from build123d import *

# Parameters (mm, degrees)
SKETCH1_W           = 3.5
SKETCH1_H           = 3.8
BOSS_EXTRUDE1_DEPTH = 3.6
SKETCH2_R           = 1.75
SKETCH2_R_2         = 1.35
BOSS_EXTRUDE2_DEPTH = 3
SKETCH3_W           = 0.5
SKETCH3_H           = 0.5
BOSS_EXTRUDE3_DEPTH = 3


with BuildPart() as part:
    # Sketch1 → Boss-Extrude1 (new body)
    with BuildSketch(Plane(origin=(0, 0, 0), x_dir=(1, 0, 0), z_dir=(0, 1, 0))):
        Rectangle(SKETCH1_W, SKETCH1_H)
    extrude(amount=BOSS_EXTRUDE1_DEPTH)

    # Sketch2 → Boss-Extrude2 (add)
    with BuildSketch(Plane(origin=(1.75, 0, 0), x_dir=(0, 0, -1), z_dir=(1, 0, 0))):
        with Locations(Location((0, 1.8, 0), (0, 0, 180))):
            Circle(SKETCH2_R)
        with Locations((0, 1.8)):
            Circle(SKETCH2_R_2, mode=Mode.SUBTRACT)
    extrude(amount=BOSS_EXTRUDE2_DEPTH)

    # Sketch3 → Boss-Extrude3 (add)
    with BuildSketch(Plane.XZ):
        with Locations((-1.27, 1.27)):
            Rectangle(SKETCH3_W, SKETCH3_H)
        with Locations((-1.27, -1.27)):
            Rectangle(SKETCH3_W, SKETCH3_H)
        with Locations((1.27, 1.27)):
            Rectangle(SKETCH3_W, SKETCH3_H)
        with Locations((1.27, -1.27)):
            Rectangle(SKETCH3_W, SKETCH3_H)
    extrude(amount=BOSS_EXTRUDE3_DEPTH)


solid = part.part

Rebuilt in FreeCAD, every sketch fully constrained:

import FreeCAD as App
import Part
import Sketcher
from FreeCAD import Vector
Q = App.Units.Quantity


def add_polygon(sketch, points):
    """Adds a closed chain of lines whose ends are joined by coincident constraints."""
    first, n = sketch.GeometryCount, len(points)
    for a, b in zip(points, points[1:] + points[:1]):
        sketch.addGeometry(Part.LineSegment(App.Vector(*a, 0), App.Vector(*b, 0)), False)
    for i in range(n):
        sketch.addConstraint(Sketcher.Constraint("Coincident", first + i, 2, first + (i + 1) % n, 1))

doc = App.newDocument("Part")
body = doc.addObject("PartDesign::Body", "Body")

# Sketch on XZ plane
sketch1 = body.newObject("Sketcher::SketchObject", "Sketch")
sketch1.AttachmentSupport = (doc.getObject("XZ_Plane"), [""])
sketch1.MapMode = "FlatFace"
add_polygon(sketch1, [(-1.8, -1.9), (-1.8, 1.9), (1.8, 1.9), (1.8, -1.9)])  # lines 0-3
sketch1.addConstraint([
    Sketcher.Constraint("Vertical", 0),
    Sketcher.Constraint("Horizontal", 1),
    Sketcher.Constraint("Vertical", 2),
    Sketcher.Constraint("Horizontal", 3),
    Sketcher.Constraint("Symmetric", 0, 2, 2, 2, -1, 1),
    Sketcher.Constraint("DistanceX", 1, 1, 1, 2, Q("3.5 mm")),
    Sketcher.Constraint("DistanceY", 0, 1, 0, 2, Q("3.8 mm")),
])
pad1 = body.newObject("PartDesign::Pad", "Pad")
pad1.Profile = sketch1
pad1.Length = 3.6
pad1.Reversed = True

# Sketch on YZ plane
sketch2 = body.newObject("Sketcher::SketchObject", "Sketch001")
sketch2.AttachmentSupport = (doc.getObject("YZ_Plane"), [""])
sketch2.MapMode = "FlatFace"
sketch2.AttachmentOffset = App.Placement(Vector(0, 0, 1.75), App.Rotation())
sketch2.addGeometry([
    Part.Circle(Vector(1.8, 0, 0), Vector(0, 0, 1), 1.8),
    Part.Circle(Vector(1.8, 0, 0), Vector(0, 0, 1), 1.4),
], False)
sketch2.addConstraint([
    Sketcher.Constraint("Coincident", 1, 3, 0, 3),
    Sketcher.Constraint("PointOnObject", 0, 3, -1),
    Sketcher.Constraint("Diameter", 0, Q("3.5 mm")),
    Sketcher.Constraint("Diameter", 1, Q("2.7 mm")),
    Sketcher.Constraint("DistanceX", -1, 1, 0, 3, Q("1.8 mm")),
])
pad2 = body.newObject("PartDesign::Pad", "Pad001")
pad2.Profile = sketch2
pad2.Length = 3

# Sketch on XZ plane
sketch3 = body.newObject("Sketcher::SketchObject", "Sketch002")
sketch3.AttachmentSupport = (doc.getObject("XZ_Plane"), [""])
sketch3.MapMode = "FlatFace"
add_polygon(sketch3, [(-1.5, 1.5), (-1.5, 1), (-1, 1), (-1, 1.5)])  # lines 0-3
add_polygon(sketch3, [(-1.5, -1), (-1.5, -1.5), (-1, -1.5), (-1, -1)])  # lines 4-7
add_polygon(sketch3, [(1, 1.5), (1, 1), (1.5, 1), (1.5, 1.5)])  # lines 8-11
add_polygon(sketch3, [(1, -1), (1, -1.5), (1.5, -1.5), (1.5, -1)])  # lines 12-15
sketch3.addConstraint([
    Sketcher.Constraint("Vertical", 0),
    Sketcher.Constraint("Horizontal", 1),
    Sketcher.Constraint("Vertical", 2),
    Sketcher.Constraint("Horizontal", 3),
    Sketcher.Constraint("Vertical", 4),
    Sketcher.Constraint("Horizontal", 5),
    Sketcher.Constraint("Vertical", 6),
    Sketcher.Constraint("Horizontal", 7),
    Sketcher.Constraint("Vertical", 8),
    Sketcher.Constraint("Horizontal", 9),
    Sketcher.Constraint("Vertical", 10),
    Sketcher.Constraint("Horizontal", 11),
    Sketcher.Constraint("Vertical", 12),
    Sketcher.Constraint("Horizontal", 13),
    Sketcher.Constraint("Vertical", 14),
    Sketcher.Constraint("Horizontal", 15),
    Sketcher.Constraint("Symmetric", 6, 2, 8, 2, -1, 1),
    Sketcher.Constraint("Symmetric", 4, 2, 10, 2, -1, 1),
    Sketcher.Constraint("Symmetric", 2, 2, 12, 2, -1, 1),
    Sketcher.Constraint("Symmetric", 0, 2, 14, 2, -1, 1),
    Sketcher.Constraint("Symmetric", 1, 2, 8, 2, -2),
    Sketcher.Constraint("Symmetric", 3, 2, 10, 2, -2),
    Sketcher.Constraint("Equal", 15, 0),
    Sketcher.Constraint("DistanceX", 1, 1, 1, 2, Q("0.5 mm")),
    Sketcher.Constraint("DistanceX", 0, 2, -1, 1, Q("1.52 mm")),
    Sketcher.Constraint("DistanceY", -1, 1, 0, 2, Q("1.02 mm")),
])
pad3 = body.newObject("PartDesign::Pad", "Pad002")
pad3.Profile = sketch3
pad3.Length = 3

doc.recompute()
